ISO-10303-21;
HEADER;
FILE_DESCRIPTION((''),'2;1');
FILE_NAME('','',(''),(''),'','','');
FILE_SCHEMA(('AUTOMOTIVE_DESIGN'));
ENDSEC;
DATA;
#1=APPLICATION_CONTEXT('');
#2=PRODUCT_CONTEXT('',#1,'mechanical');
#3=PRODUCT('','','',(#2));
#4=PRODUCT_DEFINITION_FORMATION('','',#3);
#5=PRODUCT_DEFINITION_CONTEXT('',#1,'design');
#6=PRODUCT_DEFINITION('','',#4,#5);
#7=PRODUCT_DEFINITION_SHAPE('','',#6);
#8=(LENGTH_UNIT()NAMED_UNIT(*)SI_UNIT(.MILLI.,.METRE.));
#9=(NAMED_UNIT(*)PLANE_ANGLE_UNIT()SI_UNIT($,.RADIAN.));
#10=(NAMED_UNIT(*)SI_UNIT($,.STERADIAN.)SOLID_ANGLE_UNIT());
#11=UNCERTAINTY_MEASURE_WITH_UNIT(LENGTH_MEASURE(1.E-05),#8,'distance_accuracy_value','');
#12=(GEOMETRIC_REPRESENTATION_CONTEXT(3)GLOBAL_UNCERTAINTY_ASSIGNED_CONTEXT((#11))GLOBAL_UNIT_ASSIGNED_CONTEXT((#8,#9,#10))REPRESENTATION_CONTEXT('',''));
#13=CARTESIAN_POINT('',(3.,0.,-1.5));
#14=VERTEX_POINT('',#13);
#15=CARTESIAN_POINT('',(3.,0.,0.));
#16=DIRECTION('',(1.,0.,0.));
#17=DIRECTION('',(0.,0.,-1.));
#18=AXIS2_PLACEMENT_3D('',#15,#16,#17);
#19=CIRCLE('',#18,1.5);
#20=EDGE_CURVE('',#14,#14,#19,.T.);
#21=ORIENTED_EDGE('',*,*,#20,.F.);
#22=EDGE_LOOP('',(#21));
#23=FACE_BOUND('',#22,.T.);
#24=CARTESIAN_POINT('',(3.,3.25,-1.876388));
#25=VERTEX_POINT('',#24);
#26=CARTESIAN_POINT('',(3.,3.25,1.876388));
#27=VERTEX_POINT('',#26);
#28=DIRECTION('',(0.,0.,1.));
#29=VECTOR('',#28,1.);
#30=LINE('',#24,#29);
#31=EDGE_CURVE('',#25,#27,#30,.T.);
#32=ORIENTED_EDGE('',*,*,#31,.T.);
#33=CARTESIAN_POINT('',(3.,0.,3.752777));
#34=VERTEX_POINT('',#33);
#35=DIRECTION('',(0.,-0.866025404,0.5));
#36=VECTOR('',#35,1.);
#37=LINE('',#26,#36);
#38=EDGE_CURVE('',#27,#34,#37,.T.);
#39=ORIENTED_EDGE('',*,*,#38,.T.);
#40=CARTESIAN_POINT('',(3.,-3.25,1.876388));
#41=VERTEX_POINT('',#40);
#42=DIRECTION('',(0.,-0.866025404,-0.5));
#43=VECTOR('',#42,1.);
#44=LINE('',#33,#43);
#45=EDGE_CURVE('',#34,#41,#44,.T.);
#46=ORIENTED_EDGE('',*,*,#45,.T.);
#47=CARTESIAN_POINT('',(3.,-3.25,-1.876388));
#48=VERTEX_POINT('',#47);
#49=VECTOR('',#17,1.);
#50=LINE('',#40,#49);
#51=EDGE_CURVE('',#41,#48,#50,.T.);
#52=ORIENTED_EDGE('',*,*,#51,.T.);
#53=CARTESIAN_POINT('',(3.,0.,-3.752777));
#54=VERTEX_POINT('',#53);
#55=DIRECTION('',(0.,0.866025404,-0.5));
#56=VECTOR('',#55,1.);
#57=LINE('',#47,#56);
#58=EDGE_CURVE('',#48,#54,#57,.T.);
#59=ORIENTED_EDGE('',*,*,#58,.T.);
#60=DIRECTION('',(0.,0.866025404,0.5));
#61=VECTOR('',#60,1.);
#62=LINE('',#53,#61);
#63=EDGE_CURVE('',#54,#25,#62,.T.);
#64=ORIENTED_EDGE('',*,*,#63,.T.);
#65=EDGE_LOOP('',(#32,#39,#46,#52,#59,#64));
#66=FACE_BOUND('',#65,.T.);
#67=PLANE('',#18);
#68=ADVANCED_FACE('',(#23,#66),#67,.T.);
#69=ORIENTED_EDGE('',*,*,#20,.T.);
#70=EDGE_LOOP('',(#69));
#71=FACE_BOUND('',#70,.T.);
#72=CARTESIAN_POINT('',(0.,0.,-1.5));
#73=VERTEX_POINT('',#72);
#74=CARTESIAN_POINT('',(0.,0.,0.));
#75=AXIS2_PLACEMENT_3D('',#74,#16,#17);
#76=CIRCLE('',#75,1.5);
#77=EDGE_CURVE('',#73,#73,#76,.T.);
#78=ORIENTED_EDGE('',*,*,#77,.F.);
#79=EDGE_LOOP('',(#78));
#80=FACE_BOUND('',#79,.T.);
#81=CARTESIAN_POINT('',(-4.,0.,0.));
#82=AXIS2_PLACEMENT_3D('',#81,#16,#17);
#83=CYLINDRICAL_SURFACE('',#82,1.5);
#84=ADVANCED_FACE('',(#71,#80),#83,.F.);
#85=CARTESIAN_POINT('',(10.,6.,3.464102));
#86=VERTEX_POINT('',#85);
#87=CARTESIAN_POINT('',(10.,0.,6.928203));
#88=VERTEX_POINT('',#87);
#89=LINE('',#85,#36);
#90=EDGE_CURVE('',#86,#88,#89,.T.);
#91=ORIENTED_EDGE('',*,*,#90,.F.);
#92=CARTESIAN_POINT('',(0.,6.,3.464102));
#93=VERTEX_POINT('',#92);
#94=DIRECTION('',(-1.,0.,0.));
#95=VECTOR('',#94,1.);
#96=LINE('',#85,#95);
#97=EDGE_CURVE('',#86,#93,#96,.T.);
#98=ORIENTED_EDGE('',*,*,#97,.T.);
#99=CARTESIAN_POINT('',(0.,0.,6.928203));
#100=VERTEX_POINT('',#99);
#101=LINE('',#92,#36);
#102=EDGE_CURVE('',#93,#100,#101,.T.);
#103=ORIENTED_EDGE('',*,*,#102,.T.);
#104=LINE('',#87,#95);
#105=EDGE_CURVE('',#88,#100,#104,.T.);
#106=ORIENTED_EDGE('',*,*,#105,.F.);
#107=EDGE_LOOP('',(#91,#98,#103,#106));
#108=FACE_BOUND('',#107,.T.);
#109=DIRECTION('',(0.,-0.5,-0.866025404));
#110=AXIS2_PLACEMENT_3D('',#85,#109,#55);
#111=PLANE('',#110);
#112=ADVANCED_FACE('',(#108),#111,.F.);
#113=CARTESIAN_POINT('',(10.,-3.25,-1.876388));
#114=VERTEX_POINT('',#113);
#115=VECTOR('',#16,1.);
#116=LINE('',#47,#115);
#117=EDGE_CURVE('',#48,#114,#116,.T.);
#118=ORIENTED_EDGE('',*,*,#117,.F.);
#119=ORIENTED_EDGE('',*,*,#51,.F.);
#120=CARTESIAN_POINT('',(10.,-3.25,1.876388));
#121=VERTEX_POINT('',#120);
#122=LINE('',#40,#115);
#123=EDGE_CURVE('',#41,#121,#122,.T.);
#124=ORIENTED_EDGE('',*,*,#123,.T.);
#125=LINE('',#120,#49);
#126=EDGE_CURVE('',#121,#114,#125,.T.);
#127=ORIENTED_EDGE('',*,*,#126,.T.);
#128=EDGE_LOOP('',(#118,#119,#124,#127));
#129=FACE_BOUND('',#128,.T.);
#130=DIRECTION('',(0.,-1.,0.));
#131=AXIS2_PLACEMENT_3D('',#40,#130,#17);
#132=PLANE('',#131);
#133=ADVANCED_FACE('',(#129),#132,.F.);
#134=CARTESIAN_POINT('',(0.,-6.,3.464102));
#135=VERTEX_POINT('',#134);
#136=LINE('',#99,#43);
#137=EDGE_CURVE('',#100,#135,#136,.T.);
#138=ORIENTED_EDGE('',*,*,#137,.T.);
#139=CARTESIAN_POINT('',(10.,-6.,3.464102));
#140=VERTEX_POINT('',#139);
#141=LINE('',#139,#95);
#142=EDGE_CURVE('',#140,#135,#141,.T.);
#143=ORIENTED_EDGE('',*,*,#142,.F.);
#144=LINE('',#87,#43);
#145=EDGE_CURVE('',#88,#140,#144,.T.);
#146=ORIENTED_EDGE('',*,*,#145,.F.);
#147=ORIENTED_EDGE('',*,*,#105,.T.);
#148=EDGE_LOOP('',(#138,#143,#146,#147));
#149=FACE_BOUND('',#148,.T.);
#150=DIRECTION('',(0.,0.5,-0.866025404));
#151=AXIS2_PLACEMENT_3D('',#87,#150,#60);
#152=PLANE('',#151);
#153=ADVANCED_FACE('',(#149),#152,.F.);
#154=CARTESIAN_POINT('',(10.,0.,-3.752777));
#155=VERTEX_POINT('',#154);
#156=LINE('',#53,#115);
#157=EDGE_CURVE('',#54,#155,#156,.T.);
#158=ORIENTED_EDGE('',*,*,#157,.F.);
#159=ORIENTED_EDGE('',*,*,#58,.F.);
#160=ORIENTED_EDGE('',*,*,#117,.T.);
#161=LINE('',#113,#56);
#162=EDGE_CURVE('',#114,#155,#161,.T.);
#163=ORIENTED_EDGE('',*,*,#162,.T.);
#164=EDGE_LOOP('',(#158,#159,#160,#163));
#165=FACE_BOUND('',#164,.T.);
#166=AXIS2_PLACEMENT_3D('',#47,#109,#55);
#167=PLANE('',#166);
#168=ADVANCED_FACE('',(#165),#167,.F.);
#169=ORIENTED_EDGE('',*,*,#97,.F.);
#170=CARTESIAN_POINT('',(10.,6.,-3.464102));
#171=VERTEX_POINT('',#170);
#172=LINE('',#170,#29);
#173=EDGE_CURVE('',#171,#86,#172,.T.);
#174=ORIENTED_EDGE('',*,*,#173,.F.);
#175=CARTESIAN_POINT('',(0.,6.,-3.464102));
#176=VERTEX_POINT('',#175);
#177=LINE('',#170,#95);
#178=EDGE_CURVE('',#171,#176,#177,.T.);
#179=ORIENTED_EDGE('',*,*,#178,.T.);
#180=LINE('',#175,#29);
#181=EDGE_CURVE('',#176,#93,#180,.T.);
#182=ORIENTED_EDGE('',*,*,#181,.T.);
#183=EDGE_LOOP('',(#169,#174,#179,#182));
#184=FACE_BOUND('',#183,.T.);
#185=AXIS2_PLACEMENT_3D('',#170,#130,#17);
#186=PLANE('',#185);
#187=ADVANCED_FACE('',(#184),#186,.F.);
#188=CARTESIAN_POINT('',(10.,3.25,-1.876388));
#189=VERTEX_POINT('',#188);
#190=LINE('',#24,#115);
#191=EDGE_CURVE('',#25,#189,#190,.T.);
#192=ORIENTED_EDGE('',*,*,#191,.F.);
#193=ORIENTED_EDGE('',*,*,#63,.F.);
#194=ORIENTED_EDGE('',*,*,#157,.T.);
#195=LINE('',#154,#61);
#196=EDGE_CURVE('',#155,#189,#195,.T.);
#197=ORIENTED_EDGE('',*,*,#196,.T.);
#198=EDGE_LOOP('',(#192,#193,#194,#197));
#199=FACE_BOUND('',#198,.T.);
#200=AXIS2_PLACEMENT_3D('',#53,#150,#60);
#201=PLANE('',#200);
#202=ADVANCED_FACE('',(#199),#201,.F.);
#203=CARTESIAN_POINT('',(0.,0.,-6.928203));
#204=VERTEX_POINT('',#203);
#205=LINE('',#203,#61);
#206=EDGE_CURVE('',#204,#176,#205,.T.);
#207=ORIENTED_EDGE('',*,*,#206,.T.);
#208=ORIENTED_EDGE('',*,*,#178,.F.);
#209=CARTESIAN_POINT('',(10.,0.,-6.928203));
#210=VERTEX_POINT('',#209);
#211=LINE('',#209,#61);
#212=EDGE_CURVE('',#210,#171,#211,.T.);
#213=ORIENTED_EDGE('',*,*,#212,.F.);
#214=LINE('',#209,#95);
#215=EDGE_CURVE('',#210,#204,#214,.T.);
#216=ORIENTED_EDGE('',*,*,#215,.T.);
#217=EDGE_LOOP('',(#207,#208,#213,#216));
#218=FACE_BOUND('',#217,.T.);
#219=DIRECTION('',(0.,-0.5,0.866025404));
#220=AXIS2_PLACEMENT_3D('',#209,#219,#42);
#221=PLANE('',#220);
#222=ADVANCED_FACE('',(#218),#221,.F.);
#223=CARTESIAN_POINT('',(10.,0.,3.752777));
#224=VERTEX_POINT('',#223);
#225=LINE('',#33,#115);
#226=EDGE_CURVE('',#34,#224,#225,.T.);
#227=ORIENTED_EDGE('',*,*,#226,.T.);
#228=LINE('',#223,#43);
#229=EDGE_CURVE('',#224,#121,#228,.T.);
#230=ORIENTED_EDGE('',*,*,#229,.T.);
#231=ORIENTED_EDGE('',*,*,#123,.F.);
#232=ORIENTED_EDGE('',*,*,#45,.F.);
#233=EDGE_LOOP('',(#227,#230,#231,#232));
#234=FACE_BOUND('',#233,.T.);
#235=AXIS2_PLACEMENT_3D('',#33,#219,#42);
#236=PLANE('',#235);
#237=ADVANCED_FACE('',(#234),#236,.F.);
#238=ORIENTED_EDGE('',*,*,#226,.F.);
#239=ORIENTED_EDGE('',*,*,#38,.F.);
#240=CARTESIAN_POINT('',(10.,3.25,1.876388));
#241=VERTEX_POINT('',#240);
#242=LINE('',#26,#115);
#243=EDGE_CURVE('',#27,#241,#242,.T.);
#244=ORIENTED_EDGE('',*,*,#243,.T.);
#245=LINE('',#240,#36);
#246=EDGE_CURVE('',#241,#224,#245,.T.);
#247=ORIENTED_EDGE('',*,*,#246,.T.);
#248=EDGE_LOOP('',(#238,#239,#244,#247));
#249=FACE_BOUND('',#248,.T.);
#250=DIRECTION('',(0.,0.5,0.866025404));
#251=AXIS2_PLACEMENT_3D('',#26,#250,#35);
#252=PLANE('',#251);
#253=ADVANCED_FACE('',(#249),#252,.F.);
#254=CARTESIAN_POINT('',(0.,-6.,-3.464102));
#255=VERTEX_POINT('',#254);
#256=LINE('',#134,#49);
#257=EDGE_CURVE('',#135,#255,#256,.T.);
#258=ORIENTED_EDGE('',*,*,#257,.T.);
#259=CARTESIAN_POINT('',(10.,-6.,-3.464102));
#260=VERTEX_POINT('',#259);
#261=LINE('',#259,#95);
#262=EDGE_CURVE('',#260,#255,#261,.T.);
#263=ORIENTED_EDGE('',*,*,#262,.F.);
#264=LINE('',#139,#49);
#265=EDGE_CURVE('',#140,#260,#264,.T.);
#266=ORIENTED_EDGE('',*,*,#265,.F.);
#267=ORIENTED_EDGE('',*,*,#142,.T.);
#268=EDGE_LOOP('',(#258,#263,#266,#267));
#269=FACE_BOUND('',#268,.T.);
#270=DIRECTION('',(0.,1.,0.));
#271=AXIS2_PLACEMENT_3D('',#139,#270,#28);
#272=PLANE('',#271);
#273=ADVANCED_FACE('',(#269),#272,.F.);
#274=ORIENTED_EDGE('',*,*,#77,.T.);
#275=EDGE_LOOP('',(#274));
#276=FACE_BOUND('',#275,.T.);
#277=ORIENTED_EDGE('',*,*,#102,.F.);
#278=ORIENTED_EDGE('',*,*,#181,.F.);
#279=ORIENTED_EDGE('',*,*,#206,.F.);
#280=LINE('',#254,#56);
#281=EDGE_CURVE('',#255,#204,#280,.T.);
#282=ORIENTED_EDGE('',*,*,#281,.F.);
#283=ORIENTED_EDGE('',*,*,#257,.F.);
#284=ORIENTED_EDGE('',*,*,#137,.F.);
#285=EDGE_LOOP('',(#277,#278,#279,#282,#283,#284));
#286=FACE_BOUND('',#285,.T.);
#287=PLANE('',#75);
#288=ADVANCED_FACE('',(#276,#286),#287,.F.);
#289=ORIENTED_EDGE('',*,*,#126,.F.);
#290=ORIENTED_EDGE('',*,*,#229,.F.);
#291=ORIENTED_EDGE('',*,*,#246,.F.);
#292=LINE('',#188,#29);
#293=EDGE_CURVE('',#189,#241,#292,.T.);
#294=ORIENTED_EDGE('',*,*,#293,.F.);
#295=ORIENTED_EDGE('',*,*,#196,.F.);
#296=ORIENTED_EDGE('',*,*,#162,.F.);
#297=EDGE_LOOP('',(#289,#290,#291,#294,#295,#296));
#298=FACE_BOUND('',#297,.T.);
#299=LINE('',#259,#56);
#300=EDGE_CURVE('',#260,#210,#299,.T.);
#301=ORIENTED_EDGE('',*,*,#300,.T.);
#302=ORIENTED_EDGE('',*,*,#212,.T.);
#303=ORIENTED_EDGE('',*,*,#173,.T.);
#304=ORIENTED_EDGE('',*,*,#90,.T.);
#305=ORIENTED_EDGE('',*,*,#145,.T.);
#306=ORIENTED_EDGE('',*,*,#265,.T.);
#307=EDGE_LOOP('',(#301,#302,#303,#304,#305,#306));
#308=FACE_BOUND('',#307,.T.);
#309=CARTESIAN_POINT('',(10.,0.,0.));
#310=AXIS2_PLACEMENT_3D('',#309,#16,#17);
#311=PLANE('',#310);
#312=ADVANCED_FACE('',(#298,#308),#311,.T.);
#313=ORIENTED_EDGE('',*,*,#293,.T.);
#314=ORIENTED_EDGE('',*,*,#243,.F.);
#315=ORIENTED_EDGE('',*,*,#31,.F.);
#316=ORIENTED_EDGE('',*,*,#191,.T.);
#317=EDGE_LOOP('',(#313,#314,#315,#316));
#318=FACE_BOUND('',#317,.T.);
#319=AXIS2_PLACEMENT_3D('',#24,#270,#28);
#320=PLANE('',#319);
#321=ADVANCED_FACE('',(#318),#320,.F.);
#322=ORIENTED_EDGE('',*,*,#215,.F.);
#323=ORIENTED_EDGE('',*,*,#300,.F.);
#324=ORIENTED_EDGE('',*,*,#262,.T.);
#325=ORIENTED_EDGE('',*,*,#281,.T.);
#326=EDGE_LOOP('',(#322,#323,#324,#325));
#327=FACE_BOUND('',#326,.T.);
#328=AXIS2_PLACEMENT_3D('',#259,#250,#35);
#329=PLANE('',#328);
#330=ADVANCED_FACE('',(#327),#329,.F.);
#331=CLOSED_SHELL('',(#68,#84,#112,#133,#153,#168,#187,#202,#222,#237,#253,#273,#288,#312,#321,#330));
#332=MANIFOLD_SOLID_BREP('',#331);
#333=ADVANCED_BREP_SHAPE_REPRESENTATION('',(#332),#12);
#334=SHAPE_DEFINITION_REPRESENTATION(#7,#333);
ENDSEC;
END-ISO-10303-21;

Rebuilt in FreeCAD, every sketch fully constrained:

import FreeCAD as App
import Part
import Sketcher
Q = App.Units.Quantity


def add_polygon(sketch, points):
    """Adds a closed chain of lines whose ends are joined by coincident constraints."""
    first, n = sketch.GeometryCount, len(points)
    for a, b in zip(points, points[1:] + points[:1]):
        sketch.addGeometry(Part.LineSegment(App.Vector(*a, 0), App.Vector(*b, 0)), False)
    for i in range(n):
        sketch.addConstraint(Sketcher.Constraint("Coincident", first + i, 2, first + (i + 1) % n, 1))

doc = App.newDocument("Part")
body = doc.addObject("PartDesign::Body", "Body")

# Sketch on YZ plane
sketch1 = doc.addObject("Sketcher::SketchObject", "Sketch")
body.addObject(sketch1)
sketch1.AttachmentSupport = (doc.YZ_Plane, [""])
sketch1.MapMode = "FlatFace"
add_polygon(sketch1, [(0, -7), (6, -3), (6, 3), (0, 7), (-6, 3), (-6, -3)])  # lines 0-5
sketch1.addConstraint([
    Sketcher.Constraint("Vertical", 1),
    Sketcher.Constraint("Vertical", 4),
    Sketcher.Constraint("Symmetric", 0, 2, 3, 2, -1, 1),
    Sketcher.Constraint("Symmetric", 2, 2, 5, 2, -1, 1),
    Sketcher.Constraint("PointOnObject", 2, 2, -2),
    Sketcher.Constraint("Parallel", 2, 5),
    Sketcher.Constraint("Horizontal", 1, 2, 3, 2),
    Sketcher.Constraint("Angle", 0, Q("30 deg")),
    Sketcher.Constraint("DistanceX", -1, 1, 0, 2, 6.0),
    Sketcher.Constraint("DistanceY", 0, 2, -1, 1, 3.464102),
])
pad1 = doc.addObject("PartDesign::Pad", "Pad")
body.addObject(pad1)
pad1.Profile = sketch1
pad1.Length = 10

# Sketch on YZ plane
sketch2 = doc.addObject("Sketcher::SketchObject", "Sketch001")
body.addObject(sketch2)
sketch2.AttachmentSupport = (doc.YZ_Plane, [""])
sketch2.MapMode = "FlatFace"
sketch2.AttachmentOffset = App.Placement(App.Vector(0, 0, 10), App.Rotation())
add_polygon(sketch2, [(0, -3.8), (3.2, -1.9), (3.2, 1.9), (0, 3.8), (-3.2, 1.9), (-3.2, -1.9)])  # lines 0-5
sketch2.addConstraint([
    Sketcher.Constraint("Vertical", 1),
    Sketcher.Constraint("Vertical", 4),
    Sketcher.Constraint("Symmetric", 0, 2, 3, 2, -1, 1),
    Sketcher.Constraint("Symmetric", 2, 2, 5, 2, -1, 1),
    Sketcher.Constraint("PointOnObject", 2, 2, -2),
    Sketcher.Constraint("Parallel", 2, 5),
    Sketcher.Constraint("Horizontal", 1, 2, 3, 2),
    Sketcher.Constraint("Angle", 0, Q("30 deg")),
    Sketcher.Constraint("DistanceX", 3, 2, 1, 2, 6.5),
    Sketcher.Constraint("DistanceY", 1, 1, 1, 2, 3.752777),
])
pocket1 = doc.addObject("PartDesign::Pocket", "Pocket")
body.addObject(pocket1)
pocket1.Profile = sketch2
pocket1.Length = 7

# Sketch on YZ plane
sketch3 = doc.addObject("Sketcher::SketchObject", "Sketch002")
body.addObject(sketch3)
sketch3.AttachmentSupport = (doc.YZ_Plane, [""])
sketch3.MapMode = "FlatFace"
sketch3.AttachmentOffset = App.Placement(App.Vector(0, 0, 3), App.Rotation())
sketch3.addGeometry(Part.Circle(App.Vector(0, 0, 0), App.Vector(0, 0, 1), 1.5), False)
sketch3.addConstraint([
    Sketcher.Constraint("Coincident", 0, 3, -1, 1),
    Sketcher.Constraint("Diameter", 0, 3.0),
])
pocket2 = doc.addObject("PartDesign::Pocket", "Pocket001")
body.addObject(pocket2)
pocket2.Profile = sketch3
pocket2.Length = 7

doc.recompute()
